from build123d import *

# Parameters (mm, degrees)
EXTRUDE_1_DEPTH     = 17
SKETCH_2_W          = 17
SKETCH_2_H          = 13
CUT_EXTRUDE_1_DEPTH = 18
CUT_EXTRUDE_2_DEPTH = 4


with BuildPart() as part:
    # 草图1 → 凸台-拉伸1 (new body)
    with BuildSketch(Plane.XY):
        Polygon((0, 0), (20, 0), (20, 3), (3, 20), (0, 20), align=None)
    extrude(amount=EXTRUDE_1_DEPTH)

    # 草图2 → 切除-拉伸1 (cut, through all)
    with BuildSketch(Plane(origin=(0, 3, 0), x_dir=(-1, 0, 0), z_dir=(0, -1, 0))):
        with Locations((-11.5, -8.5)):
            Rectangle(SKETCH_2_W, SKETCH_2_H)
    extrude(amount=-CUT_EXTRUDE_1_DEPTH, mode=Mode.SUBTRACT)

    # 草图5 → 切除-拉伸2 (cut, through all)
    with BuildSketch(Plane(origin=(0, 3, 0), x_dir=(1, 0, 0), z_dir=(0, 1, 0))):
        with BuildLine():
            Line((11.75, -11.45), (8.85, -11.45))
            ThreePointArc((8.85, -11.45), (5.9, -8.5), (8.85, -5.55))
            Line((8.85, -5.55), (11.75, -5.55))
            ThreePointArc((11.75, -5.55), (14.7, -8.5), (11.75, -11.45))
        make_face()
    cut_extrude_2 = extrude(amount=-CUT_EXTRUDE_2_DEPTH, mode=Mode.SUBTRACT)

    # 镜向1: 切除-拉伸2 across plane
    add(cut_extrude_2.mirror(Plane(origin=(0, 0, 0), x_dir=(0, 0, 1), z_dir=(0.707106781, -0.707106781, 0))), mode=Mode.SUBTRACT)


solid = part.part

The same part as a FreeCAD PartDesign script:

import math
import FreeCAD as App
import Part
import Sketcher
from FreeCAD import Vector

doc = App.newDocument("Part")
body = doc.addObject("PartDesign::Body", "Body")

# Sketch on XY plane
sketch1 = body.newObject("Sketcher::SketchObject", "Sketch")
sketch1.AttachmentSupport = (doc.getObject("XY_Plane"), [""])
sketch1.MapMode = "FlatFace"
sketch1.addGeometry(Part.LineSegment(Vector(0, 0, 0), Vector(20, 0, 0)), False)
sketch1.addGeometry(Part.LineSegment(Vector(20, 0, 0), Vector(20, 3, 0)), False)
sketch1.addGeometry(Part.LineSegment(Vector(20, 3, 0), Vector(3, 20, 0)), False)
sketch1.addGeometry(Part.LineSegment(Vector(3, 20, 0), Vector(0, 20, 0)), False)
sketch1.addGeometry(Part.LineSegment(Vector(0, 20, 0), Vector(0, 0, 0)), False)
sketch1.addConstraint(Sketcher.Constraint("Coincident", 0, 2, 1, 1))
sketch1.addConstraint(Sketcher.Constraint("Coincident", 1, 2, 2, 1))
sketch1.addConstraint(Sketcher.Constraint("Coincident", 2, 2, 3, 1))
sketch1.addConstraint(Sketcher.Constraint("Coincident", 3, 2, 4, 1))
sketch1.addConstraint(Sketcher.Constraint("Coincident", 4, 2, 0, 1))
sketch1.addConstraint(Sketcher.Constraint("Horizontal", 0))
sketch1.addConstraint(Sketcher.Constraint("Vertical", 1))
sketch1.addConstraint(Sketcher.Constraint("Horizontal", 3))
sketch1.addConstraint(Sketcher.Constraint("Vertical", 4))
sketch1.addConstraint(Sketcher.Constraint("Coincident", 4, 2, -1, 1))
sketch1.addConstraint(Sketcher.Constraint("Equal", 3, 1))
sketch1.addConstraint(Sketcher.Constraint("Equal", 0, 4))
sketch1.addConstraint(Sketcher.Constraint("DistanceX", 0, 1, 0, 2, 20.0))
sketch1.addConstraint(Sketcher.Constraint("DistanceX", 3, 2, 3, 1, 3.0))
pad1 = body.newObject("PartDesign::Pad", "Pad")
pad1.Profile = sketch1
pad1.Length = 17

# Sketch on XZ plane
sketch2 = body.newObject("Sketcher::SketchObject", "Sketch001")
sketch2.AttachmentSupport = (doc.getObject("XZ_Plane"), [""])
sketch2.MapMode = "FlatFace"
sketch2.AttachmentOffset = App.Placement(Vector(0, 0, -3), App.Rotation())
sketch2.addGeometry(Part.LineSegment(Vector(20, 2, 0), Vector(20, 15, 0)), False)
sketch2.addGeometry(Part.LineSegment(Vector(20, 15, 0), Vector(3, 15, 0)), False)
sketch2.addGeometry(Part.LineSegment(Vector(3, 15, 0), Vector(3, 2, 0)), False)
sketch2.addGeometry(Part.LineSegment(Vector(3, 2, 0), Vector(20, 2, 0)), False)
sketch2.addConstraint(Sketcher.Constraint("Coincident", 0, 2, 1, 1))
sketch2.addConstraint(Sketcher.Constraint("Coincident", 1, 2, 2, 1))
sketch2.addConstraint(Sketcher.Constraint("Coincident", 2, 2, 3, 1))
sketch2.addConstraint(Sketcher.Constraint("Coincident", 3, 2, 0, 1))
sketch2.addConstraint(Sketcher.Constraint("Vertical", 0))
sketch2.addConstraint(Sketcher.Constraint("Horizontal", 1))
sketch2.addConstraint(Sketcher.Constraint("Vertical", 2))
sketch2.addConstraint(Sketcher.Constraint("Horizontal", 3))
sketch2.addConstraint(Sketcher.Constraint("DistanceX", 1, 2, 1, 1, 17.0))
sketch2.addConstraint(Sketcher.Constraint("DistanceY", 0, 1, 0, 2, 13.0))
sketch2.addConstraint(Sketcher.Constraint("DistanceX", -1, 1, 0, 2, 20.0))
sketch2.addConstraint(Sketcher.Constraint("DistanceY", -1, 1, 0, 2, 15.0))
pocket1 = body.newObject("PartDesign::Pocket", "Pocket")
pocket1.Profile = sketch2
pocket1.Type = "ThroughAll"

# Sketch on XZ plane
sketch3 = body.newObject("Sketcher::SketchObject", "Sketch002")
sketch3.AttachmentSupport = (doc.getObject("XZ_Plane"), [""])
sketch3.MapMode = "FlatFace"
sketch3.AttachmentOffset = App.Placement(Vector(0, 0, -3), App.Rotation())
sketch3.addGeometry(Part.LineSegment(Vector(8.8, 11.4, 0), Vector(11.8, 11.4, 0)), False)
sketch3.addGeometry(Part.ArcOfCircle(Part.Circle(Vector(11.8, 8.5, 0), Vector(0, 0, 1), 3), math.radians(-90), math.radians(90)), False)
sketch3.addGeometry(Part.LineSegment(Vector(11.8, 5.5, 0), Vector(8.8, 5.5, 0)), False)
sketch3.addGeometry(Part.ArcOfCircle(Part.Circle(Vector(8.8, 8.5, 0), Vector(0, 0, 1), 3), math.radians(90), math.radians(270)), False)
sketch3.addConstraint(Sketcher.Constraint("Tangent", 0, 2, 1, 2))
sketch3.addConstraint(Sketcher.Constraint("Tangent", 1, 1, 2, 1))
sketch3.addConstraint(Sketcher.Constraint("Tangent", 2, 2, 3, 2))
sketch3.addConstraint(Sketcher.Constraint("Tangent", 3, 1, 0, 1))
sketch3.addConstraint(Sketcher.Constraint("Horizontal", 0))
sketch3.addConstraint(Sketcher.Constraint("Horizontal", 2))
sketch3.addConstraint(Sketcher.Constraint("Radius", 1, 2.95))
sketch3.addConstraint(Sketcher.Constraint("DistanceX", 0, 1, 0, 2, 2.9))
sketch3.addConstraint(Sketcher.Constraint("DistanceY", -1, 1, 1, 3, 8.5))
sketch3.addConstraint(Sketcher.Constraint("DistanceX", -1, 1, 1, 3, 11.75))
pocket2 = body.newObject("PartDesign::Pocket", "Pocket001")
pocket2.Profile = sketch3
pocket2.Type = "ThroughAll"
pocket2.Reversed = True
doc.recompute()

datumplane = body.newObject("PartDesign::Plane", "DatumPlane")
datumplane.Placement = App.Placement(Vector(0, 0, 0), App.Rotation(Vector(-0.707106781, -0.707106781, 0), Vector(0, 0, -1), Vector(0.707106781, -0.707106781, 0), "ZXY"))
mirrored = body.newObject("PartDesign::Mirrored", "Mirrored")
mirrored.Originals = [pocket2]
mirrored.MirrorPlane = (datumplane, [""])
body.Tip = mirrored

doc.recompute()
